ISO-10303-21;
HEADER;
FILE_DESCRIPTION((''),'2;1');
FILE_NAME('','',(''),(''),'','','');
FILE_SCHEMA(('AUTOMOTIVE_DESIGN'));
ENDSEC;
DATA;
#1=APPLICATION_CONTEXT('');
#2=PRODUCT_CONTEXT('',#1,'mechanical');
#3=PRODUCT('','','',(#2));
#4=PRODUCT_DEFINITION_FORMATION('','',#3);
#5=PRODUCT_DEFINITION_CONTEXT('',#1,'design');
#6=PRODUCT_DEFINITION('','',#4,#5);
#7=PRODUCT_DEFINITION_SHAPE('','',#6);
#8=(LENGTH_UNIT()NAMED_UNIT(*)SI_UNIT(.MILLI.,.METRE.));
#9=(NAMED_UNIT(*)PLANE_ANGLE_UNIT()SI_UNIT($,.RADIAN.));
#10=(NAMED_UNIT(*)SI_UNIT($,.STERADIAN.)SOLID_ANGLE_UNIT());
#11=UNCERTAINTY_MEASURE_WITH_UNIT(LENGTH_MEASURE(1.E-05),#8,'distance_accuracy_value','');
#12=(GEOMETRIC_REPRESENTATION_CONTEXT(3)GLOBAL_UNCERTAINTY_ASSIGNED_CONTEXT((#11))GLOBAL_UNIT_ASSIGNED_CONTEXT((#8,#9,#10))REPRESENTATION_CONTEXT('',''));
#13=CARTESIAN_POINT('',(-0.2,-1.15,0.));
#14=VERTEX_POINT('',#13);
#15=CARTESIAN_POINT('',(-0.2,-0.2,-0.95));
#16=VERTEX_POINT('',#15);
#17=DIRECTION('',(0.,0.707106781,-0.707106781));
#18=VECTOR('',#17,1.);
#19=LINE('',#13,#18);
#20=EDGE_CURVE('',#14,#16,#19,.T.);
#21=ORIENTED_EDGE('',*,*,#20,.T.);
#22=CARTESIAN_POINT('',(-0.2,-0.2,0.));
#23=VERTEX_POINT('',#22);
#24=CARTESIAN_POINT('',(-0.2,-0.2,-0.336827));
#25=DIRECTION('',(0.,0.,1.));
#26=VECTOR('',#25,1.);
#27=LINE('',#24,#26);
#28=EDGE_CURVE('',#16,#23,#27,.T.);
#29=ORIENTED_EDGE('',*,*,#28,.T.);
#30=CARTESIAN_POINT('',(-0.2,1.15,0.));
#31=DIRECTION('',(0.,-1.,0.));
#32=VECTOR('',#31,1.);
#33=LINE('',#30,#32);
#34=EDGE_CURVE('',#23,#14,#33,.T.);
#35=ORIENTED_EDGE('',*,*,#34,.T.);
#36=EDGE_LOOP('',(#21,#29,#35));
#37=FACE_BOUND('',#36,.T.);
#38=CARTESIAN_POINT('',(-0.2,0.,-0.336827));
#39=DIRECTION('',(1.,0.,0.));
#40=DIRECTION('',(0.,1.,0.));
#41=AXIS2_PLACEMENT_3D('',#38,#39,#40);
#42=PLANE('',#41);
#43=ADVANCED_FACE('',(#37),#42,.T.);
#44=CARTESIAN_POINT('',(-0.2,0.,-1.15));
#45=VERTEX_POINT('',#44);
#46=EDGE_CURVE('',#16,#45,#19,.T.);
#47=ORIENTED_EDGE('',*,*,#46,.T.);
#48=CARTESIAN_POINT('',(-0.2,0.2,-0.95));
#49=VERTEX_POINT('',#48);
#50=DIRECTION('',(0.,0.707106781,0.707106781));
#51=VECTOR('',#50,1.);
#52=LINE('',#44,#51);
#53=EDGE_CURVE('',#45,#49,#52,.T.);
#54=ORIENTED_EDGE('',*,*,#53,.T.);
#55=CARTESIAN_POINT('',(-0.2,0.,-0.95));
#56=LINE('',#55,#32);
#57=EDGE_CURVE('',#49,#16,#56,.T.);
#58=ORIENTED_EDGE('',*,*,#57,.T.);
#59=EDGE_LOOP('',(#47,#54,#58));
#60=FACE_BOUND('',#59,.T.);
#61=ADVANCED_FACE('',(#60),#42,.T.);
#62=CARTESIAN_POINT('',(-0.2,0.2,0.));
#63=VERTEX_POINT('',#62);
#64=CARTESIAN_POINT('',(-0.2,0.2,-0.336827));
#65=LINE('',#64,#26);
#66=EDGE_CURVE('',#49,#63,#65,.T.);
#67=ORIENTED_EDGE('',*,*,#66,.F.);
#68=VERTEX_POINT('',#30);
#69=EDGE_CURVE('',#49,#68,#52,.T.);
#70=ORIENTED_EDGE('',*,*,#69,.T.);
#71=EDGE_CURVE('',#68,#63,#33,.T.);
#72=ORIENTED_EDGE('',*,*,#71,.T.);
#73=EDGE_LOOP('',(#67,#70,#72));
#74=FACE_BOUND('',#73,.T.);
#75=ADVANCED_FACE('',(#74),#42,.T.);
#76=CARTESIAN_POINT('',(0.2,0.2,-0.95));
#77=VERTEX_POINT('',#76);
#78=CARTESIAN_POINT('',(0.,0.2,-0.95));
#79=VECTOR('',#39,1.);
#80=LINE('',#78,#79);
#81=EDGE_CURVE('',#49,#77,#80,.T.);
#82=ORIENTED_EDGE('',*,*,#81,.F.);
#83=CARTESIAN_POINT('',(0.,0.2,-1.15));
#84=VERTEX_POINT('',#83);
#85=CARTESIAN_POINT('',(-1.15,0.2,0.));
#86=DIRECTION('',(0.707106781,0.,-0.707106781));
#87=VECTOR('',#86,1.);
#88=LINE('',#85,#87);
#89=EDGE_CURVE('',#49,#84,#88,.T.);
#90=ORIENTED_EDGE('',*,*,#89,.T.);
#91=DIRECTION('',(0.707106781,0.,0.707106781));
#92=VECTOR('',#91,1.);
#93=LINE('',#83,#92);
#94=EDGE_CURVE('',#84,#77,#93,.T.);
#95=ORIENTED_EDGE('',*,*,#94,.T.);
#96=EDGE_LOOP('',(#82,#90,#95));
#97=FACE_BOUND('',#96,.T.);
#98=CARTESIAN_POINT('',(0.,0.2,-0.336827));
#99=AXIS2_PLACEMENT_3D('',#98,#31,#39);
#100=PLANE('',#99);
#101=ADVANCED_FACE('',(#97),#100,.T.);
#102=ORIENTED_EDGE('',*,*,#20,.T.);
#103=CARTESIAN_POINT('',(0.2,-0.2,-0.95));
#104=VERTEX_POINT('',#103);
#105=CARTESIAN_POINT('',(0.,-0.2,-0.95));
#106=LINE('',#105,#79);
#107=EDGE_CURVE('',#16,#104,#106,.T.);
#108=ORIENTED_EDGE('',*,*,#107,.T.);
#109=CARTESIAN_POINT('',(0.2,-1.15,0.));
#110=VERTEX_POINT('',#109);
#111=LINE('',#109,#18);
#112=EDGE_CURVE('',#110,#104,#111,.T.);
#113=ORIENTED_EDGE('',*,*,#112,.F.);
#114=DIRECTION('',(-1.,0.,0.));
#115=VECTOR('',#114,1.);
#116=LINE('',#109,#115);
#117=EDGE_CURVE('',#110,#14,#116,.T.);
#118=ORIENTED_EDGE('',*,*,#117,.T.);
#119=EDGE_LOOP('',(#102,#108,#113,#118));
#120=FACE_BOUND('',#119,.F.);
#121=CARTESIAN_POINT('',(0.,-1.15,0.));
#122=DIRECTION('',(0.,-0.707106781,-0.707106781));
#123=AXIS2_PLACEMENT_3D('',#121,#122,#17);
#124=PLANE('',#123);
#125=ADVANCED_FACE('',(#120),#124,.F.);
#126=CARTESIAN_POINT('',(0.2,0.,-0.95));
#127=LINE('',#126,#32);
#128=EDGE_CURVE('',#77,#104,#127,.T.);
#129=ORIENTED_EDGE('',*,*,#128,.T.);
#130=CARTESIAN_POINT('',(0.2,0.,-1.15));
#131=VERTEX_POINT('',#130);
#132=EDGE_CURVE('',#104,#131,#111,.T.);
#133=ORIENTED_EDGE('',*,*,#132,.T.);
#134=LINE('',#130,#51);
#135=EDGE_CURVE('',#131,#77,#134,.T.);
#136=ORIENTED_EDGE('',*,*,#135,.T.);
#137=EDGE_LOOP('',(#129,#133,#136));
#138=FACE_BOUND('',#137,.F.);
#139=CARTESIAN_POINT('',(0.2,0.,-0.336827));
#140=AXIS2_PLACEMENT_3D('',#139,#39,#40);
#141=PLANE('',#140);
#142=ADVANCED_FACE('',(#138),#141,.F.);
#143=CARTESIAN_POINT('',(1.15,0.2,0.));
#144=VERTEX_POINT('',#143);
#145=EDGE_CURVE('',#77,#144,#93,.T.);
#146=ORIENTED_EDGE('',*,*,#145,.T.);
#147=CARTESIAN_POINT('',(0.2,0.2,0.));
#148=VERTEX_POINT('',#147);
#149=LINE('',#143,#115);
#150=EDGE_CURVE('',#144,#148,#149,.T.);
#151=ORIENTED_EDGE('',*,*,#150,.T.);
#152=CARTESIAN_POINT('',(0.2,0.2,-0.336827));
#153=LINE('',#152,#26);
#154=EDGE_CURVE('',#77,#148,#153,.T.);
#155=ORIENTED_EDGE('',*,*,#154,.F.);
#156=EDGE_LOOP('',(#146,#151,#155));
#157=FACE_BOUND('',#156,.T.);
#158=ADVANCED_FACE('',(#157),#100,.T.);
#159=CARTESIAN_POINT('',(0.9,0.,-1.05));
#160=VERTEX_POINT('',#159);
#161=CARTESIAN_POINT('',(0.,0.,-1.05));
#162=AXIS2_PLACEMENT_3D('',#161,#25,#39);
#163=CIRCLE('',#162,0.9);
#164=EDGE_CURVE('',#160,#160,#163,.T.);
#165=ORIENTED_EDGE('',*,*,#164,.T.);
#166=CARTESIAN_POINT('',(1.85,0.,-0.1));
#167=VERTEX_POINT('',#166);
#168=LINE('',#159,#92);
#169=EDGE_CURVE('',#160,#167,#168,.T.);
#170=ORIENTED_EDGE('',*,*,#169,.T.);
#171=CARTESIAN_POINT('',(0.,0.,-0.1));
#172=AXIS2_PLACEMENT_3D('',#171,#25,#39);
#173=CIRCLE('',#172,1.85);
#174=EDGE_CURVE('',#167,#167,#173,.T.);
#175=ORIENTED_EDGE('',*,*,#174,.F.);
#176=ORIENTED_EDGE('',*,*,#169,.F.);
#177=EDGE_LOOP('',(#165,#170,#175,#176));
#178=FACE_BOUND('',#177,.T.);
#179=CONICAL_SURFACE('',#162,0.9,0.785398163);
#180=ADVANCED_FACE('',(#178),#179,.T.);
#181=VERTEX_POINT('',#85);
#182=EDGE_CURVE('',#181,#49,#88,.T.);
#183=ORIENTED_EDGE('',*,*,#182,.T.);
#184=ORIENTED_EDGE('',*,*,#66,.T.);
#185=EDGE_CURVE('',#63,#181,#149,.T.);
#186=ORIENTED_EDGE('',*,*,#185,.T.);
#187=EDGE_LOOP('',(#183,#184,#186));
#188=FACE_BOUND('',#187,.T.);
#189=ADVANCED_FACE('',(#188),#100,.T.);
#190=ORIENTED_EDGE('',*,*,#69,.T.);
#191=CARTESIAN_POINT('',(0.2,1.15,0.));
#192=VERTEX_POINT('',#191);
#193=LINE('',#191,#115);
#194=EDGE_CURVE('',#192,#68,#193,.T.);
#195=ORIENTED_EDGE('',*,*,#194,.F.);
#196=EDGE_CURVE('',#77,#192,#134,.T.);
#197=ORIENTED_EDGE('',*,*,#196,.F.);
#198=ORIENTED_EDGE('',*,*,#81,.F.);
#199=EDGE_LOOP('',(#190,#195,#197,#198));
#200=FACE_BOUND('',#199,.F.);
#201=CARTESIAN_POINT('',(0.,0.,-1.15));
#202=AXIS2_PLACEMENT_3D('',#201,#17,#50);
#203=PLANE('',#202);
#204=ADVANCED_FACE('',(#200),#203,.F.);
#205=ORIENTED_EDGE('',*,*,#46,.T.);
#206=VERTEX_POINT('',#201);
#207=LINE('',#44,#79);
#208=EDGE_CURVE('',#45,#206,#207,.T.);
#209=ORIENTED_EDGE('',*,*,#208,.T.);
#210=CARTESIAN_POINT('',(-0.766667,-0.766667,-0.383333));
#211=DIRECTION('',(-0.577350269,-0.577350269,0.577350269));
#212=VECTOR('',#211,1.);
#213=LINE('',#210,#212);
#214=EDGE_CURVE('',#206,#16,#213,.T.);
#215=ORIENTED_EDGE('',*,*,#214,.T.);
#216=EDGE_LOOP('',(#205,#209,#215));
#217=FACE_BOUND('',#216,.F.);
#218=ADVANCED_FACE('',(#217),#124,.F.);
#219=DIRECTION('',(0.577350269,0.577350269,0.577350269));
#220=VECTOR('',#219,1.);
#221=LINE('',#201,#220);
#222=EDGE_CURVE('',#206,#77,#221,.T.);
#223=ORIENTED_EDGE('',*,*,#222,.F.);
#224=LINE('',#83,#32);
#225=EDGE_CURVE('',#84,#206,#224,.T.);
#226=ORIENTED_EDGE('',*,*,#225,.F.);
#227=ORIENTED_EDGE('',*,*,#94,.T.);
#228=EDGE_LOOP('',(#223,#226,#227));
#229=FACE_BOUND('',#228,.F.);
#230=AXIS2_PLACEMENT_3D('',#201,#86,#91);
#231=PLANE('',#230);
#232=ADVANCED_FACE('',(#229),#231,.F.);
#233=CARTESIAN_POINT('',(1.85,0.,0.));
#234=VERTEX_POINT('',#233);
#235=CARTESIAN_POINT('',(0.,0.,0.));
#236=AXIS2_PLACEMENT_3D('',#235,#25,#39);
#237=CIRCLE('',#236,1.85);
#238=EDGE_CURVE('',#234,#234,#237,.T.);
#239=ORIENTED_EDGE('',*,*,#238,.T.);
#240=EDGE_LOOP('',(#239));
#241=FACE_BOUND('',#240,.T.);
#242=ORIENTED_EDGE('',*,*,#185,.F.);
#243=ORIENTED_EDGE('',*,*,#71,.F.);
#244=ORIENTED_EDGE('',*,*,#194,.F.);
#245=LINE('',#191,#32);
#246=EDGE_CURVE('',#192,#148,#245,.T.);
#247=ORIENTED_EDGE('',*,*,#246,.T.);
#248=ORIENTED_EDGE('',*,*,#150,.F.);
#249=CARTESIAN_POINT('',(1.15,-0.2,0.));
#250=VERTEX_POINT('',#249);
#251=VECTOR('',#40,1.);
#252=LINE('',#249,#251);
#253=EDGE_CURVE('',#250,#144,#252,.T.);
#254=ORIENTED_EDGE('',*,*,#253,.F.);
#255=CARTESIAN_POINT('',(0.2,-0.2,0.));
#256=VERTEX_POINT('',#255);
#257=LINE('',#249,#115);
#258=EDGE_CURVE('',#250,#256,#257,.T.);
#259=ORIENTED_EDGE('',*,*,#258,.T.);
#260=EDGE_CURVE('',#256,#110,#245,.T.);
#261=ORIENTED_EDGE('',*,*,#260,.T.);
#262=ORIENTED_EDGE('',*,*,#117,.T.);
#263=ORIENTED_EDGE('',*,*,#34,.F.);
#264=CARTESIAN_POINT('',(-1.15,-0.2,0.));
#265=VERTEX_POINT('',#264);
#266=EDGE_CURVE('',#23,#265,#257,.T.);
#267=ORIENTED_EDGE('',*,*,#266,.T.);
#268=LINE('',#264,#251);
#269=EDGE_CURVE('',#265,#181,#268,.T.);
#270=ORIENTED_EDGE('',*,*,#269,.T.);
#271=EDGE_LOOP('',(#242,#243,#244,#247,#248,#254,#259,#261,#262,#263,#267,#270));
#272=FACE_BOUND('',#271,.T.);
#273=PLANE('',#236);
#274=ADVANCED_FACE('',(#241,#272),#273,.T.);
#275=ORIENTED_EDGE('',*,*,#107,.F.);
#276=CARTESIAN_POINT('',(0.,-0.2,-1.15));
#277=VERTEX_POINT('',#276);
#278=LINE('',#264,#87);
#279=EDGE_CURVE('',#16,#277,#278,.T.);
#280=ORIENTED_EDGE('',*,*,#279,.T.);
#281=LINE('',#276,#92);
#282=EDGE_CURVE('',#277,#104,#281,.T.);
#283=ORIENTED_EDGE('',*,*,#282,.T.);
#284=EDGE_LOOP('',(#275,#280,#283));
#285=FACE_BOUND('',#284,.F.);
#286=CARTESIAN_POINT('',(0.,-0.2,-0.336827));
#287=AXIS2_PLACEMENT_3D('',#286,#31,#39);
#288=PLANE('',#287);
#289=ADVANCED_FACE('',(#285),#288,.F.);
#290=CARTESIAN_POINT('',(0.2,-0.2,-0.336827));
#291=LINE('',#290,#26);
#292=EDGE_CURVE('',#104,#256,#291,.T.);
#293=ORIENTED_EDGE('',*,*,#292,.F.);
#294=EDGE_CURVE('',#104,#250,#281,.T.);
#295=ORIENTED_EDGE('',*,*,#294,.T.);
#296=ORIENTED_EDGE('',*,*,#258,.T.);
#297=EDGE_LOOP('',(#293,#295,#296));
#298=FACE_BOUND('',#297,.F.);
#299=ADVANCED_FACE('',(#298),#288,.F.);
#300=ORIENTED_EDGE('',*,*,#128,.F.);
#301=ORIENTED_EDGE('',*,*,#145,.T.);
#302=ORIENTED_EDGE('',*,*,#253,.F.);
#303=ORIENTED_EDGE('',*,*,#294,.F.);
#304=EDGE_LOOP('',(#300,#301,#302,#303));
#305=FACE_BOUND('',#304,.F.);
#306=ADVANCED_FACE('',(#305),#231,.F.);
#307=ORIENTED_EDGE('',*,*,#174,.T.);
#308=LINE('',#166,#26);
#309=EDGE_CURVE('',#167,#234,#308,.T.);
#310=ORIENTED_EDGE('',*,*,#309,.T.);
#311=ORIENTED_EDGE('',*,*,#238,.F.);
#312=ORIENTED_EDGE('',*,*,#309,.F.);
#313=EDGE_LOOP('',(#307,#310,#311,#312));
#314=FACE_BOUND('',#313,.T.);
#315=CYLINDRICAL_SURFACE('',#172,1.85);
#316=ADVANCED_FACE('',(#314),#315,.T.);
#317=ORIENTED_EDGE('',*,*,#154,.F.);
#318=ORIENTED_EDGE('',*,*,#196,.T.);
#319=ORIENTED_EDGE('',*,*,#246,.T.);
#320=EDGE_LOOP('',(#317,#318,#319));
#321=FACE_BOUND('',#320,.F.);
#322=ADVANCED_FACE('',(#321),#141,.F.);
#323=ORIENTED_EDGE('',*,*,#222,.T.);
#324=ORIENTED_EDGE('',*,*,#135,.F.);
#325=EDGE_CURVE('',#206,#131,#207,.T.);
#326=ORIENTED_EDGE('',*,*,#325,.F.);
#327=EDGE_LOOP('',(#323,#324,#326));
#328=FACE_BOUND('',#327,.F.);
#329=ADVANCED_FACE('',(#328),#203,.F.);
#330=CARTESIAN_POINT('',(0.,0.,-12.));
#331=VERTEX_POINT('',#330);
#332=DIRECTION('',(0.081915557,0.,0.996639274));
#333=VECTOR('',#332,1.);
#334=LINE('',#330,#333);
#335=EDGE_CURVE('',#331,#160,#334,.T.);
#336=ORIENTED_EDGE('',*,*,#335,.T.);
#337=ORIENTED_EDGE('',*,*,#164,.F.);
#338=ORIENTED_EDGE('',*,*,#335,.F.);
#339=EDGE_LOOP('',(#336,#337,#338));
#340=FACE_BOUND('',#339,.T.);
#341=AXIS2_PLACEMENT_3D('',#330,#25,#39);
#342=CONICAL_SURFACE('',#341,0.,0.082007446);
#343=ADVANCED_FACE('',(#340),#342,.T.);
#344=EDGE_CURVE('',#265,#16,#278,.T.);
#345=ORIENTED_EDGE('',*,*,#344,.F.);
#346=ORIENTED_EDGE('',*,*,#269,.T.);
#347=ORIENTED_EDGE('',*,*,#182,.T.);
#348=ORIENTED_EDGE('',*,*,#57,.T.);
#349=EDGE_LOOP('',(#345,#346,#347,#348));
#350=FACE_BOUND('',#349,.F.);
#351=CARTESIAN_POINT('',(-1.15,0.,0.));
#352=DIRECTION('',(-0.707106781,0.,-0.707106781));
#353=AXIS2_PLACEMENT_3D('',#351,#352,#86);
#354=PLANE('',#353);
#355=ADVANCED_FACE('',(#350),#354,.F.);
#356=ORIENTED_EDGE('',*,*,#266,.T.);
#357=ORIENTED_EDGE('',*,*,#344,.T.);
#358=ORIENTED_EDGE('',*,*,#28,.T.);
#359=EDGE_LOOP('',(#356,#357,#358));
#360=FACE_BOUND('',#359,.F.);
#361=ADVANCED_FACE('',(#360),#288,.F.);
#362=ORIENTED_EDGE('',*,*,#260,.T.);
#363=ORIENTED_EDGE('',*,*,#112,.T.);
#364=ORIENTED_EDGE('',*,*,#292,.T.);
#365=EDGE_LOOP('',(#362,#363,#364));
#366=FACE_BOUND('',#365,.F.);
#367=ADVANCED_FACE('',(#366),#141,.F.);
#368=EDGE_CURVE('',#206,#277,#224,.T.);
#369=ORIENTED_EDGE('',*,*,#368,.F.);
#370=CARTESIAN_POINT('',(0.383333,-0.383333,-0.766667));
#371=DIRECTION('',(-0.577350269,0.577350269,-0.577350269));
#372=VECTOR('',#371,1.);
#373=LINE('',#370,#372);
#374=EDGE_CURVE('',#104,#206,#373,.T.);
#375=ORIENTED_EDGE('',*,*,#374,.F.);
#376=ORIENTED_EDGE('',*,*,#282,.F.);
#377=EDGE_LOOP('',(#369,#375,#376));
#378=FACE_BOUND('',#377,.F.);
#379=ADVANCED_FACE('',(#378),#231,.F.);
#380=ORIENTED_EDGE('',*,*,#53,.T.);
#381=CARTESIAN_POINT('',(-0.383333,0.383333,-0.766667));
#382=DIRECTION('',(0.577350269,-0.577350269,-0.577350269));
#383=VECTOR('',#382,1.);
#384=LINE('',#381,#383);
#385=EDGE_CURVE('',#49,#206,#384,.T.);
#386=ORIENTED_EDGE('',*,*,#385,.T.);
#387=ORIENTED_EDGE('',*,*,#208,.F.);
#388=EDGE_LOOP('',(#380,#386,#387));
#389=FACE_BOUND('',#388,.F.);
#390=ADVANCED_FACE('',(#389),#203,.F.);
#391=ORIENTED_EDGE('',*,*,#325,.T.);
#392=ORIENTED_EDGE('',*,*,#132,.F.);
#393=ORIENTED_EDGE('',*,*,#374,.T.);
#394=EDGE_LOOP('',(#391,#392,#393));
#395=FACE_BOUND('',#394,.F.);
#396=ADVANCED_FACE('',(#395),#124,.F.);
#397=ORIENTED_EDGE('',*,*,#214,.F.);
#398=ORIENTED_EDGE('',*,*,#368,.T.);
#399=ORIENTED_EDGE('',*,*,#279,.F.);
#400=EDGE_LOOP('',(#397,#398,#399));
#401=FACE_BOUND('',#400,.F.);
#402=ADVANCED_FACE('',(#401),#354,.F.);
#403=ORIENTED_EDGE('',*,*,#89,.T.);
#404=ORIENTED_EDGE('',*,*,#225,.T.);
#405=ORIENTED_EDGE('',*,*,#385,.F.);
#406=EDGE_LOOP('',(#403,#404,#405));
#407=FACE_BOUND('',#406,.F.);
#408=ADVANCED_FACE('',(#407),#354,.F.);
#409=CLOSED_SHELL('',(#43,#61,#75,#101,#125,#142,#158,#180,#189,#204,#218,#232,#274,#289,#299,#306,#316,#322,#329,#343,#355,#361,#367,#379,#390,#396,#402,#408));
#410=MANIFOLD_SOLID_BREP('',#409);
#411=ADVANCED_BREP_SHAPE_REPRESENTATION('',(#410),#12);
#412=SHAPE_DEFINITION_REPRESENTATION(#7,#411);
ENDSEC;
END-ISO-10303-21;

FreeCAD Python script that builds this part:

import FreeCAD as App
import Part
import Sketcher
Q = App.Units.Quantity

doc = App.newDocument("Part")
params = doc.addObject("Spreadsheet::Sheet", "Params")
for row, (alias, value) in enumerate([
    ("sketch1_height", "12 mm"),
    ("sketch1_height2", "0.1 mm"),
    ("sketch1_width", "1.85 mm"),
    ("revolution_angle", "360 deg"),
    ("sketch2_width", "2.3 mm"),
    ("pocket1_length", "0.4 mm"),
], start=1):
    params.set(f"A{row}", alias)
    params.set(f"B{row}", "=" + value)
    params.setAlias(f"B{row}", alias)

body = doc.addObject("PartDesign::Body", "Body")

# Sketch on XZ plane
sketch1 = body.newObject("Sketcher::SketchObject", "Sketch")
sketch1.AttachmentSupport = (doc.getObject("XZ_Plane"), [""])
sketch1.MapMode = "FlatFace"
sketch1.addGeometry([
    Part.LineSegment(App.Vector(0, 0, 0), App.Vector(0, -12, 0)),  # 0
    Part.LineSegment(App.Vector(0, -12, 0), App.Vector(0.9, -1.05, 0)),  # 1
    Part.LineSegment(App.Vector(0.9, -1.05, 0), App.Vector(1.85, -0.1, 0)),  # 2
    Part.LineSegment(App.Vector(1.85, -0.1, 0), App.Vector(1.85, 0, 0)),  # 3
    Part.LineSegment(App.Vector(1.85, 0, 0), App.Vector(0, 0, 0)),  # 4
], False)
sketch1.addConstraint([
    Sketcher.Constraint("Coincident", 0, 2, 1, 1),
    Sketcher.Constraint("Coincident", 1, 2, 2, 1),
    Sketcher.Constraint("Coincident", 2, 2, 3, 1),
    Sketcher.Constraint("Coincident", 3, 2, 4, 1),
    Sketcher.Constraint("Coincident", 4, 2, 0, 1),
    Sketcher.Constraint("Vertical", 0),
    Sketcher.Constraint("Vertical", 3),
    Sketcher.Constraint("Horizontal", 4),
    Sketcher.Constraint("Coincident", 4, 2, -1, 1),
    Sketcher.Constraint("DistanceY", 0, 2, 0, 1, 12.0),
    Sketcher.Constraint("Angle", 2, Q("45 deg")),
    Sketcher.Constraint("DistanceY", 3, 1, 3, 2, 0.1),
    Sketcher.Constraint("DistanceX", 4, 2, 4, 1, 1.85),
    Sketcher.Constraint("DistanceX", -1, 1, 1, 2, 0.9),
])
sketch1.setExpression("Constraints[9]", "Params.sketch1_height")
sketch1.setExpression("Constraints[11]", "Params.sketch1_height2")
sketch1.setExpression("Constraints[12]", "Params.sketch1_width")
revolution = body.newObject("PartDesign::Revolution", "Revolution")
revolution.Profile = sketch1
revolution.ReferenceAxis = (sketch1, ["V_Axis"])
revolution.setExpression("Angle", "Params.revolution_angle")

# Sketch on XZ plane
sketch2 = body.newObject("Sketcher::SketchObject", "Sketch001")
sketch2.AttachmentSupport = (doc.getObject("XZ_Plane"), [""])
sketch2.MapMode = "FlatFace"
sketch2.addGeometry([
    Part.LineSegment(App.Vector(-1.1, 0, 0), App.Vector(0, -1.1, 0)),
    Part.LineSegment(App.Vector(0, -1.1, 0), App.Vector(1.1, 0, 0)),
    Part.LineSegment(App.Vector(1.1, 0, 0), App.Vector(-1.1, 0, 0)),
], False)
sketch2.addConstraint([
    Sketcher.Constraint("Coincident", 0, 2, 1, 1),
    Sketcher.Constraint("Coincident", 1, 2, 2, 1),
    Sketcher.Constraint("Coincident", 2, 2, 0, 1),
    Sketcher.Constraint("Horizontal", 2),
    Sketcher.Constraint("Symmetric", 1, 2, 2, 2, -1, 1),
    Sketcher.Constraint("PointOnObject", 0, 2, -2),
    Sketcher.Constraint("Perpendicular", 0, 1),
    Sketcher.Constraint("DistanceX", 2, 2, 2, 1, 2.3),
])
sketch2.setExpression("Constraints[7]", "Params.sketch2_width")
pocket1 = body.newObject("PartDesign::Pocket", "Pocket")
pocket1.Profile = sketch2
pocket1.setExpression("Length", "Params.pocket1_length")
pocket1.Midplane = True
doc.recompute()

polarpattern = body.newObject("PartDesign::PolarPattern", "PolarPattern")
polarpattern.Originals = [pocket1]
polarpattern.Axis = (doc.getObject("Z_Axis"), [""])
polarpattern.Angle = 90
polarpattern.Occurrences = 2
body.Tip = polarpattern

doc.recompute()
